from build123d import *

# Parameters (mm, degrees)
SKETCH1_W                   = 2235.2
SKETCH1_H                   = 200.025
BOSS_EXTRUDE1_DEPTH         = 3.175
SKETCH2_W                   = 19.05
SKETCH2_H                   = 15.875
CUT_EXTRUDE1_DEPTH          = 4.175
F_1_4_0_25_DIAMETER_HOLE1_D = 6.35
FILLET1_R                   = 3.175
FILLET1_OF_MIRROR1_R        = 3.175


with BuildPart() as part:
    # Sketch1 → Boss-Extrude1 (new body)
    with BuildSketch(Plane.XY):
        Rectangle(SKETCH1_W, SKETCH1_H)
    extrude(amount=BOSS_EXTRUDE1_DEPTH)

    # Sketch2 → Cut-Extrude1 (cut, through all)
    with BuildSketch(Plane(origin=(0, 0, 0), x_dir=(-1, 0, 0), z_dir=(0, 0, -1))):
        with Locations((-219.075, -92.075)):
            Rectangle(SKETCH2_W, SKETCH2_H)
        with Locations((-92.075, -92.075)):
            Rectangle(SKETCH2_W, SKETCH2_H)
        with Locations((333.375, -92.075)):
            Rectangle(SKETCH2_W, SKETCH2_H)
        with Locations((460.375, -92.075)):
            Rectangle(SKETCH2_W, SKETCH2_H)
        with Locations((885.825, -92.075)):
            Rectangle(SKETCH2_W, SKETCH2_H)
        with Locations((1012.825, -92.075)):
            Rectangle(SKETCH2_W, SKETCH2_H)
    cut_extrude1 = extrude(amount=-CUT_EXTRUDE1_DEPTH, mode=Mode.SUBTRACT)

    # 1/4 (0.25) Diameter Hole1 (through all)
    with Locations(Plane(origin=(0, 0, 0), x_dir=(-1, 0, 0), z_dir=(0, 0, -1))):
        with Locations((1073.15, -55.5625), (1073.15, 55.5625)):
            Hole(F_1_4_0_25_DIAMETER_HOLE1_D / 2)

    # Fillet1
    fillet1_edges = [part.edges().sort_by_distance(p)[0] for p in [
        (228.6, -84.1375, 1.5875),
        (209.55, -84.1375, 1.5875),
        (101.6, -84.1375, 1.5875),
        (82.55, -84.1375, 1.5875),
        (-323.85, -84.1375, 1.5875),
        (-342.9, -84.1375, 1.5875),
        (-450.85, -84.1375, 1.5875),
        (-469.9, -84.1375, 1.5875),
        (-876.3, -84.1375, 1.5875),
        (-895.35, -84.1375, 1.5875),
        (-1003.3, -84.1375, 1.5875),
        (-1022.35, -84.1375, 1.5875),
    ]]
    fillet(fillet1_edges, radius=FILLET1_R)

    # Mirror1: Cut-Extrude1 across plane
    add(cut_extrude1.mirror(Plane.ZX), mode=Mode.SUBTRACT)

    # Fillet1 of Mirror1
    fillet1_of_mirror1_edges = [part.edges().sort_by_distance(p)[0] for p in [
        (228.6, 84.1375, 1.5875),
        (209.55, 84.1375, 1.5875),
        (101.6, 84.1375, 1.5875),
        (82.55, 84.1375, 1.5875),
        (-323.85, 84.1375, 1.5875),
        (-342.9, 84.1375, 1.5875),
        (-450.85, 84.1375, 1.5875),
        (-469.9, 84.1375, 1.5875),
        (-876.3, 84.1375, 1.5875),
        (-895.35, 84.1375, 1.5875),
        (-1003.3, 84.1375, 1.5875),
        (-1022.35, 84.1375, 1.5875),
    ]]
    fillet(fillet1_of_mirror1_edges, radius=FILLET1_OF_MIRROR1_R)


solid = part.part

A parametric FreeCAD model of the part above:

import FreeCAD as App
import Part
import Sketcher
from FreeCAD import Vector
Q = App.Units.Quantity


def edges_at(feature, points):
    """Names of the edges that pass closest to the given points."""
    edges = feature.Shape.Edges
    near = lambda p: min(range(len(edges)), key=lambda i: edges[i].distToShape(Part.Vertex(*p))[0])
    return sorted({f"Edge{near(p) + 1}" for p in points})


def add_polygon(sketch, points):
    """Adds a closed chain of lines whose ends are joined by coincident constraints."""
    first, n = sketch.GeometryCount, len(points)
    for a, b in zip(points, points[1:] + points[:1]):
        sketch.addGeometry(Part.LineSegment(App.Vector(*a, 0), App.Vector(*b, 0)), False)
    for i in range(n):
        sketch.addConstraint(Sketcher.Constraint("Coincident", first + i, 2, first + (i + 1) % n, 1))

doc = App.newDocument("Part")
params = doc.addObject("Spreadsheet::Sheet", "Params")
for row, (alias, value) in enumerate([
    ("sketch1_width", "88 in"),
    ("sketch1_height", "7.875 in"),
    ("pad1_length", "0.125 in"),
    ("sketch2_width", "0.75 in"),
    ("sketch2_height", "0.625 in"),
    ("sketch3_diameter", "0.25 in"),
    ("hole_diameter", "0.25 in"),
    ("fillet_radius", "0.125 in"),
    ("fillet2_radius", "0.125 in"),
], start=1):
    params.set(f"A{row}", alias)
    params.set(f"B{row}", "=" + value)
    params.setAlias(f"B{row}", alias)

body = doc.addObject("PartDesign::Body", "Body")

# Sketch on XY plane
sketch1 = body.newObject("Sketcher::SketchObject", "Sketch")
sketch1.AttachmentSupport = (doc.getObject("XY_Plane"), [""])
sketch1.MapMode = "FlatFace"
add_polygon(sketch1, [(-1118, 100), (-1118, -100), (1118, -100), (1118, 100)])  # lines 0-3
sketch1.addConstraint([
    Sketcher.Constraint("Vertical", 0),
    Sketcher.Constraint("Horizontal", 1),
    Sketcher.Constraint("Vertical", 2),
    Sketcher.Constraint("Horizontal", 3),
    Sketcher.Constraint("Symmetric", 0, 2, 2, 2, -1, 1),
    Sketcher.Constraint("DistanceX", 1, 1, 1, 2, Q("88 in")),
    Sketcher.Constraint("DistanceY", 0, 2, 0, 1, Q("7.875 in")),
])
sketch1.setExpression("Constraints[9]", "Params.sketch1_width")
sketch1.setExpression("Constraints[10]", "Params.sketch1_height")
pad1 = body.newObject("PartDesign::Pad", "Pad")
pad1.Profile = sketch1
pad1.setExpression("Length", "Params.pad1_length")

# Sketch on XY plane
sketch2 = body.newObject("Sketcher::SketchObject", "Sketch001")
sketch2.AttachmentSupport = (doc.getObject("XY_Plane"), [""])
sketch2.MapMode = "FlatFace"
add_polygon(sketch2, [(229, -84), (229, -100), (210, -100), (210, -84)])  # lines 0-3
add_polygon(sketch2, [(102, -84), (102, -100), (83, -100), (83, -84)])  # lines 4-7
add_polygon(sketch2, [(-324, -84), (-324, -100), (-343, -100), (-343, -84)])  # lines 8-11
add_polygon(sketch2, [(-451, -84), (-451, -100), (-470, -100), (-470, -84)])  # lines 12-15
add_polygon(sketch2, [(-876, -84), (-876, -100), (-895, -100), (-895, -84)])  # lines 16-19
add_polygon(sketch2, [(-1003, -84), (-1003, -100), (-1022, -100), (-1022, -84)])  # lines 20-23
sketch2.addConstraint([
    Sketcher.Constraint("Vertical", 0),
    Sketcher.Constraint("Horizontal", 1),
    Sketcher.Constraint("Vertical", 2),
    Sketcher.Constraint("Horizontal", 3),
    Sketcher.Constraint("Vertical", 4),
    Sketcher.Constraint("Horizontal", 5),
    Sketcher.Constraint("Vertical", 6),
    Sketcher.Constraint("Horizontal", 7),
    Sketcher.Constraint("Vertical", 8),
    Sketcher.Constraint("Horizontal", 9),
    Sketcher.Constraint("Vertical", 10),
    Sketcher.Constraint("Horizontal", 11),
    Sketcher.Constraint("Vertical", 12),
    Sketcher.Constraint("Horizontal", 13),
    Sketcher.Constraint("Vertical", 14),
    Sketcher.Constraint("Horizontal", 15),
    Sketcher.Constraint("Vertical", 16),
    Sketcher.Constraint("Horizontal", 17),
    Sketcher.Constraint("Vertical", 18),
    Sketcher.Constraint("Horizontal", 19),
    Sketcher.Constraint("Vertical", 20),
    Sketcher.Constraint("Horizontal", 21),
    Sketcher.Constraint("Vertical", 22),
    Sketcher.Constraint("Horizontal", 23),
    Sketcher.Constraint("Horizontal", 1, 2, 4, 2),
    Sketcher.Constraint("Horizontal", 3, 2, 6, 2),
    Sketcher.Constraint("Horizontal", 5, 2, 8, 2),
    Sketcher.Constraint("Horizontal", 7, 2, 10, 2),
    Sketcher.Constraint("Horizontal", 9, 2, 12, 2),
    Sketcher.Constraint("Horizontal", 11, 2, 14, 2),
    Sketcher.Constraint("Horizontal", 13, 2, 16, 2),
    Sketcher.Constraint("Horizontal", 15, 2, 18, 2),
    Sketcher.Constraint("Horizontal", 17, 2, 20, 2),
    Sketcher.Constraint("Horizontal", 19, 2, 22, 2),
    Sketcher.Constraint("Equal", 3, 5),
    Sketcher.Constraint("Equal", 7, 9),
    Sketcher.Constraint("Equal", 11, 13),
    Sketcher.Constraint("Equal", 15, 17),
    Sketcher.Constraint("Equal", 19, 21),
    Sketcher.Constraint("DistanceX", -1, 1, 0, 2, Q("9 in")),
    Sketcher.Constraint("DistanceX", -1, 1, 4, 2, Q("4 in")),
    Sketcher.Constraint("DistanceX", 8, 2, 5, 2, Q("16 in")),
    Sketcher.Constraint("DistanceX", 12, 2, 8, 2, Q("5 in")),
    Sketcher.Constraint("DistanceX", 16, 2, 13, 2, Q("16 in")),
    Sketcher.Constraint("DistanceX", 20, 2, 16, 2, Q("5 in")),
    Sketcher.Constraint("DistanceX", 1, 2, 1, 1, Q("0.75 in")),
    Sketcher.Constraint("DistanceY", 0, 2, 0, 1, Q("0.625 in")),
    Sketcher.Constraint("DistanceY", 0, 2, -1, 1, Q("3.9375 in")),
])
sketch2.setExpression("Constraints[69]", "Params.sketch2_width")
sketch2.setExpression("Constraints[70]", "Params.sketch2_height")
pocket1 = body.newObject("PartDesign::Pocket", "Pocket")
pocket1.Profile = sketch2
pocket1.Type = "ThroughAll"
pocket1.Reversed = True

# Sketch on XY plane
sketch3 = body.newObject("Sketcher::SketchObject", "Sketch002")
sketch3.AttachmentSupport = (doc.getObject("XY_Plane"), [""])
sketch3.MapMode = "FlatFace"
sketch3.addGeometry([
    Part.Circle(Vector(-1073.2, -55.6, 0), Vector(0, 0, 1), 3.2),
    Part.Circle(Vector(-1073.2, 55.6, 0), Vector(0, 0, 1), 3.2),
], False)
sketch3.addConstraint([
    Sketcher.Constraint("Equal", 0, 1),
    Sketcher.Constraint("Symmetric", 0, 3, 1, 3, -1),
    Sketcher.Constraint("Diameter", 0, Q("0.25 in")),
    Sketcher.Constraint("DistanceX", 0, 3, -1, 1, Q("42.25 in")),
    Sketcher.Constraint("DistanceY", 0, 3, -1, 1, Q("2.1875 in")),
])
sketch3.setExpression("Constraints[2]", "Params.sketch3_diameter")
doc.recompute()
hole = body.newObject("PartDesign::Hole", "Hole")
hole.Profile = sketch3
hole.ThreadType = "None"
hole.setExpression("Diameter", "Params.hole_diameter")
hole.DepthType = "ThroughAll"
hole.Reversed = True
doc.recompute()

fillet = body.newObject("PartDesign::Fillet", "Fillet")
fillet.Base = (hole, edges_at(hole, [
    (228.6, -84.138, 1.587),
    (209.55, -84.138, 1.587),
    (101.6, -84.138, 1.587),
    (82.55, -84.138, 1.587),
    (-323.85, -84.138, 1.587),
    (-342.9, -84.138, 1.587),
    (-450.85, -84.138, 1.587),
    (-469.9, -84.138, 1.587),
    (-876.3, -84.138, 1.587),
    (-895.35, -84.138, 1.587),
    (-1003.3, -84.138, 1.587),
    (-1022.35, -84.138, 1.587),
]))
fillet.setExpression("Radius", "Params.fillet_radius")
doc.recompute()

mirrored = body.newObject("PartDesign::Mirrored", "Mirrored")
mirrored.Originals = [pocket1]
mirrored.MirrorPlane = (doc.getObject("XZ_Plane"), [""])
body.Tip = mirrored
doc.recompute()

fillet2 = body.newObject("PartDesign::Fillet", "Fillet001")
fillet2.Base = (mirrored, edges_at(mirrored, [
    (228.6, 84.138, 1.587),
    (209.55, 84.138, 1.587),
    (101.6, 84.138, 1.587),
    (82.55, 84.138, 1.587),
    (-323.85, 84.138, 1.587),
    (-342.9, 84.138, 1.587),
    (-450.85, 84.138, 1.587),
    (-469.9, 84.138, 1.587),
    (-876.3, 84.138, 1.587),
    (-895.35, 84.138, 1.587),
    (-1003.3, 84.138, 1.587),
    (-1022.35, 84.138, 1.587),
]))
fillet2.setExpression("Radius", "Params.fillet2_radius")

doc.recompute()
